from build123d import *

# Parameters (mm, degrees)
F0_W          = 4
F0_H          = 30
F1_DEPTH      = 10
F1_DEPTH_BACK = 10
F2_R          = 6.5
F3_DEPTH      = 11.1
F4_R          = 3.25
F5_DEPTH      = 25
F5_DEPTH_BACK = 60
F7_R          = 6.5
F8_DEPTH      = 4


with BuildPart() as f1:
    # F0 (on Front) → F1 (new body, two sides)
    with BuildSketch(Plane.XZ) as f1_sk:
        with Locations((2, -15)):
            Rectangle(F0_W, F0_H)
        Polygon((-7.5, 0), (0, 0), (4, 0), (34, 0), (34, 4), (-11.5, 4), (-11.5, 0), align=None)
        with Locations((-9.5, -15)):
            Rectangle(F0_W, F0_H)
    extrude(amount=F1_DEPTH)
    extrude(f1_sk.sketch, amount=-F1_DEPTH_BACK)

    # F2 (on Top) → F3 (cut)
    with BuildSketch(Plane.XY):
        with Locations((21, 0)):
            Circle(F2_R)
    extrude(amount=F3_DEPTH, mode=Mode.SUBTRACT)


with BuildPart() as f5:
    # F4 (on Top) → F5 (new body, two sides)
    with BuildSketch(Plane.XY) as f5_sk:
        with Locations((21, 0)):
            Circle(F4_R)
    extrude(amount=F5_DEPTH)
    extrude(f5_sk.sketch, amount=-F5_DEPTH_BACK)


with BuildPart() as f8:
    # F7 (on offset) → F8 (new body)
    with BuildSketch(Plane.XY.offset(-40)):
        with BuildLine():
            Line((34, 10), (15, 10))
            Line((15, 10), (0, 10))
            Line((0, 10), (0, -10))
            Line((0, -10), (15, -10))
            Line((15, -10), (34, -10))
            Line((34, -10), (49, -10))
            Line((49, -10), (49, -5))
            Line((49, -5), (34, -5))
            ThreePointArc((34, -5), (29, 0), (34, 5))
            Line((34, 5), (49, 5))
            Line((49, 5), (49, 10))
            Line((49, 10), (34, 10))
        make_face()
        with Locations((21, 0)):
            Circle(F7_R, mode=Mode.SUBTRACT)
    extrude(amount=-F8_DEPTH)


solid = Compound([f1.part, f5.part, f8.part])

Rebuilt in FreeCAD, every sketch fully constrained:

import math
import FreeCAD as App
import Part
import Sketcher
Q = App.Units.Quantity

doc = App.newDocument("Part")
body = doc.addObject("PartDesign::Body", "Body")

sketch1 = doc.addObject("Sketcher::SketchObject", "Sketch")
body.addObject(sketch1)
sketch1.AttachmentSupport = (doc.XZ_Plane, [""])
sketch1.MapMode = "FlatFace"
sketch1.addGeometry([
    Part.LineSegment(App.Vector(0, 0, 0), App.Vector(0, -30, 0)),
    Part.LineSegment(App.Vector(0, -30, 0), App.Vector(4, -30, 0)),
    Part.LineSegment(App.Vector(4, -30, 0), App.Vector(4, 0, 0)),
    Part.LineSegment(App.Vector(4, 0, 0), App.Vector(34, 0, 0)),
    Part.LineSegment(App.Vector(34, 0, 0), App.Vector(34, 4, 0)),
    Part.LineSegment(App.Vector(34, 4, 0), App.Vector(-11.5, 4, 0)),
    Part.LineSegment(App.Vector(-11.5, 4, 0), App.Vector(-11.5, -30, 0)),
    Part.LineSegment(App.Vector(-11.5, -30, 0), App.Vector(-7.5, -30, 0)),
    Part.LineSegment(App.Vector(-7.5, -30, 0), App.Vector(-7.5, 0, 0)),
    Part.LineSegment(App.Vector(-7.5, 0, 0), App.Vector(0, 0, 0)),
], False)
sketch1.addConstraint([
    Sketcher.Constraint("Coincident", 0, 2, 1, 1),
    Sketcher.Constraint("Coincident", 1, 2, 2, 1),
    Sketcher.Constraint("Coincident", 2, 2, 3, 1),
    Sketcher.Constraint("Coincident", 3, 2, 4, 1),
    Sketcher.Constraint("Coincident", 4, 2, 5, 1),
    Sketcher.Constraint("Coincident", 5, 2, 6, 1),
    Sketcher.Constraint("Coincident", 6, 2, 7, 1),
    Sketcher.Constraint("Coincident", 7, 2, 8, 1),
    Sketcher.Constraint("Coincident", 8, 2, 9, 1),
    Sketcher.Constraint("Coincident", 9, 2, 0, 1),
    Sketcher.Constraint("Vertical", 0),
    Sketcher.Constraint("Horizontal", 1),
    Sketcher.Constraint("Vertical", 2),
    Sketcher.Constraint("Horizontal", 3),
    Sketcher.Constraint("Vertical", 4),
    Sketcher.Constraint("Horizontal", 5),
    Sketcher.Constraint("Vertical", 6),
    Sketcher.Constraint("Horizontal", 7),
    Sketcher.Constraint("Vertical", 8),
    Sketcher.Constraint("Horizontal", 9),
    Sketcher.Constraint("Coincident", 9, 2, -1, 1),
    Sketcher.Constraint("PointOnObject", 2, 2, -1),
    Sketcher.Constraint("Horizontal", 1, 2, 6, 2),
    Sketcher.Constraint("Equal", 1, 7),
    Sketcher.Constraint("Equal", 3, 0),
    Sketcher.Constraint("Equal", 7, 4),
    Sketcher.Constraint("DistanceX", 1, 1, 1, 2, Q("4 mm")),
    Sketcher.Constraint("DistanceX", 3, 1, 3, 2, Q("30 mm")),
    Sketcher.Constraint("DistanceX", 5, 2, 5, 1, Q("45.5 mm")),
])
pad1 = doc.addObject("PartDesign::Pad", "Pad")
body.addObject(pad1)
pad1.Profile = sketch1
pad1.Type = "TwoLengths"
pad1.Length = 10
pad1.Length2 = 10

sketch2 = doc.addObject("Sketcher::SketchObject", "Sketch001")
body.addObject(sketch2)
sketch2.AttachmentSupport = (doc.XY_Plane, [""])
sketch2.MapMode = "FlatFace"
sketch2.addGeometry(Part.Circle(App.Vector(21, 0, 0), App.Vector(0, 0, 1), 6.5), False)
sketch2.addConstraint([
    Sketcher.Constraint("PointOnObject", 0, 3, -1),
    Sketcher.Constraint("Diameter", 0, Q("13 mm")),
    Sketcher.Constraint("DistanceX", -1, 1, 0, 3, Q("21 mm")),
])
pocket1 = doc.addObject("PartDesign::Pocket", "Pocket")
body.addObject(pocket1)
pocket1.Profile = sketch2
pocket1.Length = 11.1
pocket1.Reversed = True
body2 = doc.addObject("PartDesign::Body", "Body001")

sketch3 = doc.addObject("Sketcher::SketchObject", "Sketch002")
body2.addObject(sketch3)
sketch3.AttachmentSupport = (doc.getObject("XY_Plane001"), [""])
sketch3.MapMode = "FlatFace"
sketch3.addGeometry(Part.Circle(App.Vector(21, 0, 0), App.Vector(0, 0, 1), 3.25), False)
sketch3.addConstraint([
    Sketcher.Constraint("PointOnObject", 0, 3, -1),
    Sketcher.Constraint("Diameter", 0, Q("6.5 mm")),
    Sketcher.Constraint("DistanceX", -1, 1, 0, 3, Q("21 mm")),
])
pad2 = doc.addObject("PartDesign::Pad", "Pad001")
body2.addObject(pad2)
pad2.Profile = sketch3
pad2.Type = "TwoLengths"
pad2.Length = 25
pad2.Length2 = 60
body3 = doc.addObject("PartDesign::Body", "Body002")

sketch4 = doc.addObject("Sketcher::SketchObject", "Sketch003")
body3.addObject(sketch4)
sketch4.AttachmentSupport = (doc.getObject("XY_Plane002"), [""])
sketch4.MapMode = "FlatFace"
sketch4.AttachmentOffset = App.Placement(App.Vector(0, 0, -40), App.Rotation())
sketch4.addGeometry([
    Part.LineSegment(App.Vector(0, 10, 0), App.Vector(0, -10, 0)),
    Part.LineSegment(App.Vector(0, -10, 0), App.Vector(49, -10, 0)),
    Part.LineSegment(App.Vector(49, -10, 0), App.Vector(49, -5, 0)),
    Part.LineSegment(App.Vector(49, -5, 0), App.Vector(34, -5, 0)),
    Part.ArcOfCircle(Part.Circle(App.Vector(34, 0, 0), App.Vector(0, 0, 1), 5), math.radians(90), math.radians(270)),
    Part.LineSegment(App.Vector(34, 5, 0), App.Vector(49, 5, 0)),
    Part.LineSegment(App.Vector(49, 5, 0), App.Vector(49, 10, 0)),
    Part.LineSegment(App.Vector(49, 10, 0), App.Vector(0, 10, 0)),
    Part.Circle(App.Vector(21, 0, 0), App.Vector(0, 0, 1), 6.5),
], False)
sketch4.addConstraint([
    Sketcher.Constraint("Coincident", 0, 2, 1, 1),
    Sketcher.Constraint("Coincident", 1, 2, 2, 1),
    Sketcher.Constraint("Coincident", 2, 2, 3, 1),
    Sketcher.Constraint("Tangent", 3, 2, 4, 2),
    Sketcher.Constraint("Tangent", 4, 1, 5, 1),
    Sketcher.Constraint("Coincident", 5, 2, 6, 1),
    Sketcher.Constraint("Coincident", 6, 2, 7, 1),
    Sketcher.Constraint("Coincident", 7, 2, 0, 1),
    Sketcher.Constraint("Vertical", 0),
    Sketcher.Constraint("Horizontal", 1),
    Sketcher.Constraint("Vertical", 2),
    Sketcher.Constraint("Horizontal", 3),
    Sketcher.Constraint("Horizontal", 5),
    Sketcher.Constraint("Vertical", 6),
    Sketcher.Constraint("Horizontal", 7),
    Sketcher.Constraint("Symmetric", 0, 2, 7, 2, -1, 1),
    Sketcher.Constraint("Symmetric", 2, 2, 5, 2, -1),
    Sketcher.Constraint("PointOnObject", 8, 3, -1),
    Sketcher.Constraint("Diameter", 8, Q("13 mm")),
    Sketcher.Constraint("Radius", 4, Q("5 mm")),
    Sketcher.Constraint("DistanceX", 1, 1, 1, 2, Q("49 mm")),
    Sketcher.Constraint("DistanceX", 3, 2, 3, 1, Q("15 mm")),
    Sketcher.Constraint("DistanceY", 0, 2, 0, 1, Q("20 mm")),
    Sketcher.Constraint("DistanceX", -1, 1, 8, 3, Q("21 mm")),
])
pad3 = doc.addObject("PartDesign::Pad", "Pad002")
body3.addObject(pad3)
pad3.Profile = sketch4
pad3.Length = 4
pad3.Reversed = True

doc.recompute()
